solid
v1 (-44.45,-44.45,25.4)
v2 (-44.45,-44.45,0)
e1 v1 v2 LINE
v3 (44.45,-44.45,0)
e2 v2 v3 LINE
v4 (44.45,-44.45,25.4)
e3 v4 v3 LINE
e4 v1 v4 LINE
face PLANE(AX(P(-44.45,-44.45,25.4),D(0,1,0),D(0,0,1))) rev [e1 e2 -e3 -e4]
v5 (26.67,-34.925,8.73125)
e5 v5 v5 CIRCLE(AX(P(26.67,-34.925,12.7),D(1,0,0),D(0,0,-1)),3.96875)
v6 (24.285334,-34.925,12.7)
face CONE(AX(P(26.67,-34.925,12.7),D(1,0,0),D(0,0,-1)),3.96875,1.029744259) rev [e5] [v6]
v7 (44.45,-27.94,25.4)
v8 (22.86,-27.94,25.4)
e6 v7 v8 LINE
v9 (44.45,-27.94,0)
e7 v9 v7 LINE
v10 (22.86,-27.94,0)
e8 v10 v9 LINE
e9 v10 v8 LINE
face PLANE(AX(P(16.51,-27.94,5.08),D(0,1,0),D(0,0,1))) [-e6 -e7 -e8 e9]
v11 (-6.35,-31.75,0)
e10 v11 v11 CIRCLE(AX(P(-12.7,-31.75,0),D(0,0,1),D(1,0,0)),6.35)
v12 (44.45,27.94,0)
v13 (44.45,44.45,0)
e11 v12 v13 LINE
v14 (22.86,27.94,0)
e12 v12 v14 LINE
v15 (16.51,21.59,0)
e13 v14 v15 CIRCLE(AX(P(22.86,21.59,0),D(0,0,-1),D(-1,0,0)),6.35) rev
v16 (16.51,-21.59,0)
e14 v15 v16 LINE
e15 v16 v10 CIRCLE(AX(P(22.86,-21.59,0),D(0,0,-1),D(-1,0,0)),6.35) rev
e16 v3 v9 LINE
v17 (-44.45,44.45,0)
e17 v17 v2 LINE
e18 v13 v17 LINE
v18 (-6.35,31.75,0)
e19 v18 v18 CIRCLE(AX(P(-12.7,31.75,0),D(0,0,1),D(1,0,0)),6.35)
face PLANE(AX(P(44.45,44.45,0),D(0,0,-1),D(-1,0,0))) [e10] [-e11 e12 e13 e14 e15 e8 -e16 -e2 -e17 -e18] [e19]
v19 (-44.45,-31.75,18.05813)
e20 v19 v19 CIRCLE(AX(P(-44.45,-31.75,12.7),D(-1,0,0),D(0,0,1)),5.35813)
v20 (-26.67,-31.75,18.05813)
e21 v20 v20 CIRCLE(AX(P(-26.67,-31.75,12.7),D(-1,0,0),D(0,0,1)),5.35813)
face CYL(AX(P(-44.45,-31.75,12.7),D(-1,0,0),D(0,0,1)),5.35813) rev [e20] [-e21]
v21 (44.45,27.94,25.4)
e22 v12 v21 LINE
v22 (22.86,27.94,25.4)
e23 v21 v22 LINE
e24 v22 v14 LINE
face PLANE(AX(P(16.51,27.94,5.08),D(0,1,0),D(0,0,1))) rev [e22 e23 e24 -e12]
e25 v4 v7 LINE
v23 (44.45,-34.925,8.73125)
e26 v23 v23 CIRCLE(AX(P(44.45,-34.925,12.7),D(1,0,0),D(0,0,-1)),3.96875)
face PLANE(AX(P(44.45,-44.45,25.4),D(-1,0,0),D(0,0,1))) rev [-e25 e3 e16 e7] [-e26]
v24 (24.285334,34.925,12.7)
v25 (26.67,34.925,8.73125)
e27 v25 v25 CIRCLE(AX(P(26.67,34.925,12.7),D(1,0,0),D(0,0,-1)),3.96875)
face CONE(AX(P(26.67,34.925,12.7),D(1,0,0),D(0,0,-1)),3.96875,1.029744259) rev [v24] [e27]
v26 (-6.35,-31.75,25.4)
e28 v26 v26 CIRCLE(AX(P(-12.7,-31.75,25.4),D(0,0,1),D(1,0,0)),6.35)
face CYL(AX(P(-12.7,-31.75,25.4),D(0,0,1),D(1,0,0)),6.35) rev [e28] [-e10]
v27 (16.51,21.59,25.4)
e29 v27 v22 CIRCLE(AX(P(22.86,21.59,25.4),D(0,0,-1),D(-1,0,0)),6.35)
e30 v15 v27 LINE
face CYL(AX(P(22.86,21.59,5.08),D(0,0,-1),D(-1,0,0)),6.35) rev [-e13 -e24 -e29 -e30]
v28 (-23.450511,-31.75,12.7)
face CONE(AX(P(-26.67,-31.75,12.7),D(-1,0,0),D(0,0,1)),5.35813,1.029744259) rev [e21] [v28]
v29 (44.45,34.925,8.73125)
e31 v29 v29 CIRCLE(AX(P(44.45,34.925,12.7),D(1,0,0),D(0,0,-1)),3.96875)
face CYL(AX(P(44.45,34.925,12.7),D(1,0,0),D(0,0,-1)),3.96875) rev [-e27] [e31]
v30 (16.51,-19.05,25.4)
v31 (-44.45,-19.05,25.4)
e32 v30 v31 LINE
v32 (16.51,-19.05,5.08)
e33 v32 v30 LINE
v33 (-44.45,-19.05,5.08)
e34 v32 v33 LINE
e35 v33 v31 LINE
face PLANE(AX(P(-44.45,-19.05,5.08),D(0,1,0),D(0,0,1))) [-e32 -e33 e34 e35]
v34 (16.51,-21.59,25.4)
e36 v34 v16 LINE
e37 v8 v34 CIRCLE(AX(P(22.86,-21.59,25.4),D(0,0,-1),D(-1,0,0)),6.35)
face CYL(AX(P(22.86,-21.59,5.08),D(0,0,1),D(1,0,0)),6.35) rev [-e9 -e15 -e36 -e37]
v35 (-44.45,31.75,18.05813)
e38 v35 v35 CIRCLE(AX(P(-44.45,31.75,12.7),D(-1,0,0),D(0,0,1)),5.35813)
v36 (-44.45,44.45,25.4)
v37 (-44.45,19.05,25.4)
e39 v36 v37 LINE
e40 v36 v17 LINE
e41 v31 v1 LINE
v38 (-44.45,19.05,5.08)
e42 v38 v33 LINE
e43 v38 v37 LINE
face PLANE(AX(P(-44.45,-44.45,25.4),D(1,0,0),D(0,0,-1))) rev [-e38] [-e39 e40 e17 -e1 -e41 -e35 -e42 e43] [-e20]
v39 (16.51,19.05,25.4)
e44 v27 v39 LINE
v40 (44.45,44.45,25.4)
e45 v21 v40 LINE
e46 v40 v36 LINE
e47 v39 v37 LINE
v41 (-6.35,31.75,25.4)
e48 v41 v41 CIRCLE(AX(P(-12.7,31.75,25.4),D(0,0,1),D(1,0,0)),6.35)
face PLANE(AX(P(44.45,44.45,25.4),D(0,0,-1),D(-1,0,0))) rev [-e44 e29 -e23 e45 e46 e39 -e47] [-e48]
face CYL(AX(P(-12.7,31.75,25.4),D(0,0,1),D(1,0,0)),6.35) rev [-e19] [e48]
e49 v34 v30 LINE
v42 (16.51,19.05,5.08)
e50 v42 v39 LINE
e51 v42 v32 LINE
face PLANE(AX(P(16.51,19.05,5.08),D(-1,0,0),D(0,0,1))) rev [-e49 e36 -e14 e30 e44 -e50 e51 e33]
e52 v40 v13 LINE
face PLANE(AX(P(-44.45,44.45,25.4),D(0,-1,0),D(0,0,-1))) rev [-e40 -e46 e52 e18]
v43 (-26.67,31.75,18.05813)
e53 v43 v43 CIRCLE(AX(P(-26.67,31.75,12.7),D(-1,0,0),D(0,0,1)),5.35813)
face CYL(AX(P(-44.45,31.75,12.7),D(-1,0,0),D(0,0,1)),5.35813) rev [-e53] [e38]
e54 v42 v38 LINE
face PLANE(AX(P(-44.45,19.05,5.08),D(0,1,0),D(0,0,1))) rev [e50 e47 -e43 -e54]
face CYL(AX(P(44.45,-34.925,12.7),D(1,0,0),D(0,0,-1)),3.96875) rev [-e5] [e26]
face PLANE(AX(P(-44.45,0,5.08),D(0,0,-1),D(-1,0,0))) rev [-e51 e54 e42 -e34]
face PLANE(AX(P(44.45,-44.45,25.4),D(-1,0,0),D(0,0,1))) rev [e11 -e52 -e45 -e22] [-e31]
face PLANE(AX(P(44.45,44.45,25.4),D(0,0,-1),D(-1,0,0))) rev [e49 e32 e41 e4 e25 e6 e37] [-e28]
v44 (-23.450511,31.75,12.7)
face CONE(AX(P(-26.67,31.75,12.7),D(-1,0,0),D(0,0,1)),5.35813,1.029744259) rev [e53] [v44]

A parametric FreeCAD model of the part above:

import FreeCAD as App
import Part
import Sketcher
from FreeCAD import Vector
Q = App.Units.Quantity


def edges_at(feature, points):
    """Names of the edges that pass closest to the given points."""
    edges = feature.Shape.Edges
    near = lambda p: min(range(len(edges)), key=lambda i: edges[i].distToShape(Part.Vertex(*p))[0])
    return sorted({f"Edge{near(p) + 1}" for p in points})


def add_polygon(sketch, points):
    """Adds a closed chain of lines whose ends are joined by coincident constraints."""
    first, n = sketch.GeometryCount, len(points)
    for a, b in zip(points, points[1:] + points[:1]):
        sketch.addGeometry(Part.LineSegment(App.Vector(*a, 0), App.Vector(*b, 0)), False)
    for i in range(n):
        sketch.addConstraint(Sketcher.Constraint("Coincident", first + i, 2, first + (i + 1) % n, 1))

doc = App.newDocument("Part")
body = doc.addObject("PartDesign::Body", "Body")

sketch1 = body.newObject("Sketcher::SketchObject", "Sketch")
sketch1.AttachmentSupport = (doc.getObject("XY_Plane"), [""])
sketch1.MapMode = "FlatFace"
add_polygon(sketch1, [(-44, 44), (-44, -44), (44, -44), (44, 44)])
sketch1.addConstraint(Sketcher.Constraint("Vertical", 0))
sketch1.addConstraint(Sketcher.Constraint("Horizontal", 1))
sketch1.addConstraint(Sketcher.Constraint("Vertical", 2))
sketch1.addConstraint(Sketcher.Constraint("Horizontal", 3))
sketch1.addConstraint(Sketcher.Constraint("Symmetric", 0, 2, 2, 2, -1, 1))
sketch1.addConstraint(Sketcher.Constraint("Equal", 3, 0))
sketch1.addConstraint(Sketcher.Constraint("DistanceX", 1, 1, 1, 2, Q("3.5 in")))
pad1 = body.newObject("PartDesign::Pad", "Pad")
pad1.Profile = sketch1
pad1.Length = Q("1 in")

sketch2 = body.newObject("Sketcher::SketchObject", "Sketch001")
sketch2.AttachmentSupport = (doc.getObject("XZ_Plane"), [""])
sketch2.MapMode = "FlatFace"
sketch2.AttachmentOffset = App.Placement(Vector(0, 0, -1.375 * 25.4), App.Rotation())
add_polygon(sketch2, [(24.3, 12.7), (44.5, 12.7), (44.5, 8.7), (26.7, 8.7)])
sketch2.addGeometry(Part.LineSegment(Vector(44.5, 12.7, 0), Vector(24.3, 12.7, 0)), True)
sketch2.addConstraint(Sketcher.Constraint("Horizontal", 0))
sketch2.addConstraint(Sketcher.Constraint("Vertical", 1))
sketch2.addConstraint(Sketcher.Constraint("Horizontal", 2))
sketch2.addConstraint(Sketcher.Constraint("Horizontal", 4))
sketch2.addConstraint(Sketcher.Constraint("Coincident", 4, 1, 0, 2))
sketch2.addConstraint(Sketcher.Constraint("Equal", 0, 4))
sketch2.addConstraint(Sketcher.Constraint("DistanceX", 2, 2, 2, 1, Q("0.7 in")))
sketch2.addConstraint(Sketcher.Constraint("Angle", 3, Q("121 deg")))
sketch2.addConstraint(Sketcher.Constraint("DistanceY", -1, 1, 0, 2, Q("0.5 in")))
sketch2.addConstraint(Sketcher.Constraint("DistanceY", 1, 2, 1, 1, Q("0.15625 in")))
sketch2.addConstraint(Sketcher.Constraint("DistanceX", -1, 1, 0, 2, Q("1.75 in")))
groove = body.newObject("PartDesign::Groove", "Groove")
groove.Profile = sketch2
groove.ReferenceAxis = (sketch2, ["Axis0"])
groove.Angle = 360
doc.recompute()

mirrored = body.newObject("PartDesign::Mirrored", "Mirrored")
mirrored.Originals = [groove]
mirrored.MirrorPlane = (doc.getObject("XZ_Plane"), [""])
body.Tip = mirrored

sketch3 = body.newObject("Sketcher::SketchObject", "Sketch002")
sketch3.AttachmentSupport = (doc.getObject("XY_Plane"), [""])
sketch3.MapMode = "FlatFace"
sketch3.AttachmentOffset = App.Placement(Vector(0, 0, 1 * 25.4), App.Rotation())
sketch3.addGeometry(Part.Circle(Vector(-13, 32, 0), Vector(0, 0, 1), 6), False)
sketch3.addConstraint(Sketcher.Constraint("Diameter", 0, Q("0.5 in")))
sketch3.addConstraint(Sketcher.Constraint("DistanceX", 0, 3, -1, 1, Q("0.5 in")))
sketch3.addConstraint(Sketcher.Constraint("DistanceY", -1, 1, 0, 3, Q("1.25 in")))
doc.recompute()
hole = body.newObject("PartDesign::Hole", "Hole")
hole.Profile = sketch3
hole.ThreadType = "None"
hole.Diameter = Q("0.5 in")
hole.DepthType = "ThroughAll"
doc.recompute()

mirrored2 = body.newObject("PartDesign::Mirrored", "Mirrored001")
mirrored2.Originals = [hole]
mirrored2.MirrorPlane = (doc.getObject("XZ_Plane"), [""])
body.Tip = mirrored2

sketch4 = body.newObject("Sketcher::SketchObject", "Sketch003")
sketch4.AttachmentSupport = (doc.getObject("XY_Plane"), [""])
sketch4.MapMode = "FlatFace"
sketch4.AttachmentOffset = App.Placement(Vector(0, 0, 1 * 25.4), App.Rotation())
add_polygon(sketch4, [(-44, 19), (-44, 0), (44, 0), (44, 28), (17, 28), (17, 19)])
sketch4.addConstraint(Sketcher.Constraint("Vertical", 0))
sketch4.addConstraint(Sketcher.Constraint("Horizontal", 1))
sketch4.addConstraint(Sketcher.Constraint("Vertical", 2))
sketch4.addConstraint(Sketcher.Constraint("Horizontal", 3))
sketch4.addConstraint(Sketcher.Constraint("Vertical", 4))
sketch4.addConstraint(Sketcher.Constraint("Horizontal", 5))
sketch4.addConstraint(Sketcher.Constraint("Symmetric", 0, 2, 1, 2, -1, 1))
sketch4.addConstraint(Sketcher.Constraint("Equal", 3, 2))
sketch4.addConstraint(Sketcher.Constraint("DistanceX", 1, 1, 1, 2, Q("3.5 in")))
sketch4.addConstraint(Sketcher.Constraint("DistanceX", 3, 2, 3, 1, Q("1.1 in")))
sketch4.addConstraint(Sketcher.Constraint("DistanceY", 0, 2, 0, 1, Q("0.75 in")))
pocket1 = body.newObject("PartDesign::Pocket", "Pocket")
pocket1.Profile = sketch4
pocket1.Length = Q("0.8 in")
doc.recompute()

mirrored3 = body.newObject("PartDesign::Mirrored", "Mirrored002")
mirrored3.Originals = [pocket1]
mirrored3.MirrorPlane = (doc.getObject("XZ_Plane"), [""])
body.Tip = mirrored3

sketch5 = body.newObject("Sketcher::SketchObject", "Sketch004")
sketch5.AttachmentSupport = (doc.getObject("XY_Plane"), [""])
sketch5.MapMode = "FlatFace"
sketch5.AttachmentOffset = App.Placement(Vector(0, 0, 0.2 * 25.4), App.Rotation())
add_polygon(sketch5, [(17, 28), (17, -28), (44, -28), (44, 28)])
sketch5.addConstraint(Sketcher.Constraint("Vertical", 0))
sketch5.addConstraint(Sketcher.Constraint("Horizontal", 1))
sketch5.addConstraint(Sketcher.Constraint("Vertical", 2))
sketch5.addConstraint(Sketcher.Constraint("Horizontal", 3))
sketch5.addConstraint(Sketcher.Constraint("DistanceX", 1, 1, 1, 2, Q("1.1 in")))
sketch5.addConstraint(Sketcher.Constraint("DistanceY", 0, 2, 0, 1, Q("2.2 in")))
sketch5.addConstraint(Sketcher.Constraint("DistanceY", 0, 2, -1, 1, Q("1.1 in")))
sketch5.addConstraint(Sketcher.Constraint("DistanceX", -1, 1, 0, 2, Q("0.65 in")))
pocket2 = body.newObject("PartDesign::Pocket", "Pocket001")
pocket2.Profile = sketch5
pocket2.Type = "ThroughAll"
doc.recompute()

fillet = body.newObject("PartDesign::Fillet", "Fillet")
fillet.Base = (pocket2, edges_at(pocket2, [(16.51, 27.94, 12.7), (16.51, -27.94, 12.7)]))
fillet.Radius = Q("0.25 in")

sketch6 = body.newObject("Sketcher::SketchObject", "Sketch005")
sketch6.AttachmentSupport = (doc.getObject("XZ_Plane"), [""])
sketch6.MapMode = "FlatFace"
sketch6.AttachmentOffset = App.Placement(Vector(0, 0, -1.25 * 25.4), App.Rotation())
add_polygon(sketch6, [(-23, 13), (-44, 13), (-44, 18), (-27, 18)])
sketch6.addGeometry(Part.LineSegment(Vector(-44, 13, 0), Vector(-23, 13, 0)), True)
sketch6.addConstraint(Sketcher.Constraint("Horizontal", 0))
sketch6.addConstraint(Sketcher.Constraint("Vertical", 1))
sketch6.addConstraint(Sketcher.Constraint("Horizontal", 2))
sketch6.addConstraint(Sketcher.Constraint("Horizontal", 4))
sketch6.addConstraint(Sketcher.Constraint("Coincident", 4, 1, 0, 2))
sketch6.addConstraint(Sketcher.Constraint("Equal", 0, 4))
sketch6.addConstraint(Sketcher.Constraint("DistanceX", 2, 1, 2, 2, Q("0.7 in")))
sketch6.addConstraint(Sketcher.Constraint("Angle", 3, Q("-59 deg")))
sketch6.addConstraint(Sketcher.Constraint("DistanceY", -1, 1, 0, 2, Q("0.5 in")))
sketch6.addConstraint(Sketcher.Constraint("DistanceX", 0, 2, -1, 1, Q("1.75 in")))
sketch6.addConstraint(Sketcher.Constraint("DistanceX", 0, 2, 0, 1, 20.999489))
groove2 = body.newObject("PartDesign::Groove", "Groove001")
groove2.Profile = sketch6
groove2.ReferenceAxis = (sketch6, ["Axis0"])
groove2.Angle = 360
doc.recompute()

mirrored4 = body.newObject("PartDesign::Mirrored", "Mirrored003")
mirrored4.Originals = [groove2]
mirrored4.MirrorPlane = (doc.getObject("XZ_Plane"), [""])
body.Tip = mirrored4

doc.recompute()
